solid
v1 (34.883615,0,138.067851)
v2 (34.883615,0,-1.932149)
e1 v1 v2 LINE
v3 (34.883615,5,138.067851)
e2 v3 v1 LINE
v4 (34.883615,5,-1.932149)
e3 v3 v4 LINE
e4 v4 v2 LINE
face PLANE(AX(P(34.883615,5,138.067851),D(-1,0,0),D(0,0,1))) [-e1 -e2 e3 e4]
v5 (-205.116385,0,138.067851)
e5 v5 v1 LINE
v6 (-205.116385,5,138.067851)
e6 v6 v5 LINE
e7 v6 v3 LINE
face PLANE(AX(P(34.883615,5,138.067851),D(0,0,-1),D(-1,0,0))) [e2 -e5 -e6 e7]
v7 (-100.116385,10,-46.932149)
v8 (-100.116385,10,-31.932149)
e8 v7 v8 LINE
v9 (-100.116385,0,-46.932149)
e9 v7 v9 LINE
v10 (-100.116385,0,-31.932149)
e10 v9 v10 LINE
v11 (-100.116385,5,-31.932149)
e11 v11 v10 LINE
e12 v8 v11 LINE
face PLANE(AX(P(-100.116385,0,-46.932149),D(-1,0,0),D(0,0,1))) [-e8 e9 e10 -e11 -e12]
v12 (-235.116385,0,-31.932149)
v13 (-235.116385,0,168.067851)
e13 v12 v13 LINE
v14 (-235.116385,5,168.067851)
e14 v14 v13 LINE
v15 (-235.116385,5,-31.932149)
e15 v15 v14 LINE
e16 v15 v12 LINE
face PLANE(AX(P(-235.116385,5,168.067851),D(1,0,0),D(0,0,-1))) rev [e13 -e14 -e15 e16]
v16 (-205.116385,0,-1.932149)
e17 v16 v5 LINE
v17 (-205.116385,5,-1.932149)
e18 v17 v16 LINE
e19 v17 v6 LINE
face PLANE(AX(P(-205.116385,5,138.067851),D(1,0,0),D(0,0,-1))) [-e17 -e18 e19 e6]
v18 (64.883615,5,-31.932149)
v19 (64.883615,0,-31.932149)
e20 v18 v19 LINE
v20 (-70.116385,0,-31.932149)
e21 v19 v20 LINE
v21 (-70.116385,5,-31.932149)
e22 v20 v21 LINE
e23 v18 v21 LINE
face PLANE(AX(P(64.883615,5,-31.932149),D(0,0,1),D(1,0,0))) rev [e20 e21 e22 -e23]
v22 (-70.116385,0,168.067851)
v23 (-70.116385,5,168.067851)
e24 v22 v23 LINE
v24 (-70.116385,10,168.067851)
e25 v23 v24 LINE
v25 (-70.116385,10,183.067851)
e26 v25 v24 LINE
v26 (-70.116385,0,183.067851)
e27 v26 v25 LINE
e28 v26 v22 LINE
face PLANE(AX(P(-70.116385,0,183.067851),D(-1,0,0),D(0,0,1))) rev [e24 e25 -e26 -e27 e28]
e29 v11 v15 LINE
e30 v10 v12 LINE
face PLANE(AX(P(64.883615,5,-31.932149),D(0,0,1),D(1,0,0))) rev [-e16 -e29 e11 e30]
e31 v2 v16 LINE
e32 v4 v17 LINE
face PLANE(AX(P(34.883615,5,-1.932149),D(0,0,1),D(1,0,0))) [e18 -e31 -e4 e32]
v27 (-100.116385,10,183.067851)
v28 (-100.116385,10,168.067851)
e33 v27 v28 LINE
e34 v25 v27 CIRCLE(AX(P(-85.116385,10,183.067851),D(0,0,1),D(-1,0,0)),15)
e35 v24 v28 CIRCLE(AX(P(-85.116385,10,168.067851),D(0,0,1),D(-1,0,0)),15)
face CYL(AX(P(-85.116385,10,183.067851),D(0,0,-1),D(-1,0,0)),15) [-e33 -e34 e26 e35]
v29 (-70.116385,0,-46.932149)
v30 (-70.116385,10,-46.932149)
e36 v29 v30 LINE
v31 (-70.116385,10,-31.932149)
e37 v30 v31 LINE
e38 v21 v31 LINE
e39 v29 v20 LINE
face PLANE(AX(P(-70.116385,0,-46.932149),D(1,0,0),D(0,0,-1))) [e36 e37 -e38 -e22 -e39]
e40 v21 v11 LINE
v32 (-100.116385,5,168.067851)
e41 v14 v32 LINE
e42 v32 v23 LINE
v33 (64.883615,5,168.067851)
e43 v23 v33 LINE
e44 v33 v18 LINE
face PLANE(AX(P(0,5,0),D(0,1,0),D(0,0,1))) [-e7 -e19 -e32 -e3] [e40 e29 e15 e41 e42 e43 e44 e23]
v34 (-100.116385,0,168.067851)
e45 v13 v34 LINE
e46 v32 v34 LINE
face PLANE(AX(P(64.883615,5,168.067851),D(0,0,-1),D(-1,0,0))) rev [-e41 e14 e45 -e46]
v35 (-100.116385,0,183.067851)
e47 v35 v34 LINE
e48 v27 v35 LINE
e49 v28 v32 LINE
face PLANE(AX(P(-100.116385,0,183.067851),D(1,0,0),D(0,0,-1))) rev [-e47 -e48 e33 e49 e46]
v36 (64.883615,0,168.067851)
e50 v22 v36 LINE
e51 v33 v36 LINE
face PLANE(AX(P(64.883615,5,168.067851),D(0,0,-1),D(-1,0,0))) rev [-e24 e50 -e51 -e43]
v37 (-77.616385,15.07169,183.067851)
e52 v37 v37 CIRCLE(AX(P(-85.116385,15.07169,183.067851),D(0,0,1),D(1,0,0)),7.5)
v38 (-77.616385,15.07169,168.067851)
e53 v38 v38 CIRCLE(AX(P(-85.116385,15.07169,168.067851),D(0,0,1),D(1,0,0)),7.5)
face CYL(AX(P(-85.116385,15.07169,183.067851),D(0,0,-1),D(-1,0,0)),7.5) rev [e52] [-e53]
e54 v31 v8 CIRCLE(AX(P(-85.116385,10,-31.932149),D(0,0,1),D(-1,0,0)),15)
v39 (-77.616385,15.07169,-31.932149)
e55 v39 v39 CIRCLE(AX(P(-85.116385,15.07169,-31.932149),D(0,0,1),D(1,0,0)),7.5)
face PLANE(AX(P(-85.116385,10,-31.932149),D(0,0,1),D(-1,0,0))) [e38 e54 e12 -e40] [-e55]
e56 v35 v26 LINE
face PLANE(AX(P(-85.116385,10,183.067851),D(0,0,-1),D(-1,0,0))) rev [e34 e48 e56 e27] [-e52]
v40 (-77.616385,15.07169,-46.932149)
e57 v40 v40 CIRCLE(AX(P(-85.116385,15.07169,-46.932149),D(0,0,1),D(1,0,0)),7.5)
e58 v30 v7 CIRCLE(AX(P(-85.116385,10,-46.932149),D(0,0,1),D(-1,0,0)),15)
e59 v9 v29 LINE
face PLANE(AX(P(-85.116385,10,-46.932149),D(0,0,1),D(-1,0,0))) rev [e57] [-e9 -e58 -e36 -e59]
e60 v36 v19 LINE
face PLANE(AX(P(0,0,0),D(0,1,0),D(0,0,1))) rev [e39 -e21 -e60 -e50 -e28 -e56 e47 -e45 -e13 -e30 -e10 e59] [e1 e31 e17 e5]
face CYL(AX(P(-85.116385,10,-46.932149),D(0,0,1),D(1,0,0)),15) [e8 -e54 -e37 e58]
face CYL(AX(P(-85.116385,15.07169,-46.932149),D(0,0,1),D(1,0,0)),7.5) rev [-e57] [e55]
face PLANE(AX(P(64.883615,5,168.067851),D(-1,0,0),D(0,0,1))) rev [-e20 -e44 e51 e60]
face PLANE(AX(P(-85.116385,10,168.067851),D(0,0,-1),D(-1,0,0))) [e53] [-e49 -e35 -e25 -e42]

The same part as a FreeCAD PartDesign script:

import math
import FreeCAD as App
import Part
import Sketcher
Q = App.Units.Quantity

doc = App.newDocument("Part")
body = doc.addObject("PartDesign::Body", "Body")

# Sketch on XZ plane
sketch1 = body.newObject("Sketcher::SketchObject", "Sketch")
sketch1.AttachmentSupport = (doc.getObject("XZ_Plane"), [""])
sketch1.MapMode = "FlatFace"
sketch1.addGeometry([
    Part.LineSegment(App.Vector(-235.116385, -31.932149, 0), App.Vector(-235.116385, 168.067851, 0)),  # 0
    Part.LineSegment(App.Vector(-235.116385, 168.067851, 0), App.Vector(64.883615, 168.067851, 0)),  # 1
    Part.LineSegment(App.Vector(64.883615, 168.067851, 0), App.Vector(64.883615, -31.932149, 0)),  # 2
    Part.LineSegment(App.Vector(64.883615, -31.932149, 0), App.Vector(-235.116385, -31.932149, 0)),  # 3
    Part.LineSegment(App.Vector(34.883615, 138.067851, 0), App.Vector(-205.116385, 138.067851, 0)),  # 4
    Part.LineSegment(App.Vector(-205.116385, 138.067851, 0), App.Vector(-205.116385, -1.932149, 0)),  # 5
    Part.LineSegment(App.Vector(-205.116385, -1.932149, 0), App.Vector(34.883615, -1.932149, 0)),  # 6
    Part.LineSegment(App.Vector(34.883615, -1.932149, 0), App.Vector(34.883615, 138.067851, 0)),  # 7
], False)
sketch1.addConstraint([
    Sketcher.Constraint("Coincident", 0, 2, 1, 1),
    Sketcher.Constraint("Coincident", 1, 2, 2, 1),
    Sketcher.Constraint("Coincident", 2, 2, 3, 1),
    Sketcher.Constraint("Coincident", 3, 2, 0, 1),
    Sketcher.Constraint("Coincident", 4, 2, 5, 1),
    Sketcher.Constraint("Coincident", 5, 2, 6, 1),
    Sketcher.Constraint("Coincident", 6, 2, 7, 1),
    Sketcher.Constraint("Coincident", 7, 2, 4, 1),
    Sketcher.Constraint("Vertical", 0),
    Sketcher.Constraint("Horizontal", 1),
    Sketcher.Constraint("Vertical", 2),
    Sketcher.Constraint("Horizontal", 3),
    Sketcher.Constraint("Horizontal", 4),
    Sketcher.Constraint("Vertical", 5),
    Sketcher.Constraint("Horizontal", 6),
    Sketcher.Constraint("Vertical", 7),
    Sketcher.Constraint("DistanceX", 1, 1, 1, 2, Q("300 mm")),
    Sketcher.Constraint("DistanceX", 4, 2, 4, 1, Q("240 mm")),
    Sketcher.Constraint("DistanceY", 0, 1, 0, 2, Q("200 mm")),
    Sketcher.Constraint("DistanceY", 5, 2, 5, 1, Q("140 mm")),
    Sketcher.Constraint("DistanceX", 0, 2, 4, 2, Q("30 mm")),
    Sketcher.Constraint("DistanceY", 4, 2, 0, 2, Q("30 mm")),
    Sketcher.Constraint("DistanceY", -1, 1, 0, 2, Q("168.067851 mm")),
    Sketcher.Constraint("DistanceX", 0, 2, -1, 1, Q("235.116385 mm")),
])
pad1 = body.newObject("PartDesign::Pad", "Pad")
pad1.Profile = sketch1
pad1.Length = 5
pad1.Reversed = True

# Sketch on XY plane
sketch2 = body.newObject("Sketcher::SketchObject", "Sketch001")
sketch2.AttachmentSupport = (doc.getObject("XY_Plane"), [""])
sketch2.MapMode = "FlatFace"
sketch2.AttachmentOffset = App.Placement(App.Vector(0, 0, 168.067851), App.Rotation())
sketch2.addGeometry([
    Part.LineSegment(App.Vector(-100.116385, 0, 0), App.Vector(-70.116385, 0, 0)),  # 0
    Part.LineSegment(App.Vector(-70.116385, 0, 0), App.Vector(-70.116385, 10, 0)),  # 1
    Part.ArcOfCircle(Part.Circle(App.Vector(-85.116385, 10, 0), App.Vector(0, 0, 1), 15), math.radians(0), math.radians(180)),  # 2
    Part.LineSegment(App.Vector(-100.116385, 10, 0), App.Vector(-100.116385, 0, 0)),  # 3
    Part.Circle(App.Vector(-85.116385, 15.07169, 0), App.Vector(0, 0, 1), 7.5),  # 4
], False)
sketch2.addConstraint([
    Sketcher.Constraint("Coincident", 0, 2, 1, 1),
    Sketcher.Constraint("Tangent", 1, 2, 2, 1),
    Sketcher.Constraint("Tangent", 2, 2, 3, 1),
    Sketcher.Constraint("Coincident", 3, 2, 0, 1),
    Sketcher.Constraint("Horizontal", 0),
    Sketcher.Constraint("Vertical", 1),
    Sketcher.Constraint("Vertical", 3),
    Sketcher.Constraint("PointOnObject", 0, 2, -1),
    Sketcher.Constraint("Vertical", 2, 3, 4, 3),
    Sketcher.Constraint("Diameter", 4, Q("15 mm")),
    Sketcher.Constraint("Radius", 2, Q("15 mm")),
    Sketcher.Constraint("DistanceY", 1, 1, 1, 2, Q("10 mm")),
    Sketcher.Constraint("DistanceY", -1, 1, 4, 3, Q("15.07169 mm")),
    Sketcher.Constraint("DistanceX", 2, 3, -1, 1, Q("85.116385 mm")),
])
pad2 = body.newObject("PartDesign::Pad", "Pad001")
pad2.Profile = sketch2
pad2.Length = 15
doc.recompute()

datumplane = body.newObject("PartDesign::Plane", "DatumPlane")
datumplane.AttachmentSupport = (doc.getObject("XY_Plane"), [""])
datumplane.MapMode = "FlatFace"
datumplane.AttachmentOffset = App.Placement(App.Vector(0, 0, 68.067851), App.Rotation())
mirrored = body.newObject("PartDesign::Mirrored", "Mirrored")
mirrored.Originals = [pad2]
mirrored.MirrorPlane = (datumplane, [""])
body.Tip = mirrored

doc.recompute()
